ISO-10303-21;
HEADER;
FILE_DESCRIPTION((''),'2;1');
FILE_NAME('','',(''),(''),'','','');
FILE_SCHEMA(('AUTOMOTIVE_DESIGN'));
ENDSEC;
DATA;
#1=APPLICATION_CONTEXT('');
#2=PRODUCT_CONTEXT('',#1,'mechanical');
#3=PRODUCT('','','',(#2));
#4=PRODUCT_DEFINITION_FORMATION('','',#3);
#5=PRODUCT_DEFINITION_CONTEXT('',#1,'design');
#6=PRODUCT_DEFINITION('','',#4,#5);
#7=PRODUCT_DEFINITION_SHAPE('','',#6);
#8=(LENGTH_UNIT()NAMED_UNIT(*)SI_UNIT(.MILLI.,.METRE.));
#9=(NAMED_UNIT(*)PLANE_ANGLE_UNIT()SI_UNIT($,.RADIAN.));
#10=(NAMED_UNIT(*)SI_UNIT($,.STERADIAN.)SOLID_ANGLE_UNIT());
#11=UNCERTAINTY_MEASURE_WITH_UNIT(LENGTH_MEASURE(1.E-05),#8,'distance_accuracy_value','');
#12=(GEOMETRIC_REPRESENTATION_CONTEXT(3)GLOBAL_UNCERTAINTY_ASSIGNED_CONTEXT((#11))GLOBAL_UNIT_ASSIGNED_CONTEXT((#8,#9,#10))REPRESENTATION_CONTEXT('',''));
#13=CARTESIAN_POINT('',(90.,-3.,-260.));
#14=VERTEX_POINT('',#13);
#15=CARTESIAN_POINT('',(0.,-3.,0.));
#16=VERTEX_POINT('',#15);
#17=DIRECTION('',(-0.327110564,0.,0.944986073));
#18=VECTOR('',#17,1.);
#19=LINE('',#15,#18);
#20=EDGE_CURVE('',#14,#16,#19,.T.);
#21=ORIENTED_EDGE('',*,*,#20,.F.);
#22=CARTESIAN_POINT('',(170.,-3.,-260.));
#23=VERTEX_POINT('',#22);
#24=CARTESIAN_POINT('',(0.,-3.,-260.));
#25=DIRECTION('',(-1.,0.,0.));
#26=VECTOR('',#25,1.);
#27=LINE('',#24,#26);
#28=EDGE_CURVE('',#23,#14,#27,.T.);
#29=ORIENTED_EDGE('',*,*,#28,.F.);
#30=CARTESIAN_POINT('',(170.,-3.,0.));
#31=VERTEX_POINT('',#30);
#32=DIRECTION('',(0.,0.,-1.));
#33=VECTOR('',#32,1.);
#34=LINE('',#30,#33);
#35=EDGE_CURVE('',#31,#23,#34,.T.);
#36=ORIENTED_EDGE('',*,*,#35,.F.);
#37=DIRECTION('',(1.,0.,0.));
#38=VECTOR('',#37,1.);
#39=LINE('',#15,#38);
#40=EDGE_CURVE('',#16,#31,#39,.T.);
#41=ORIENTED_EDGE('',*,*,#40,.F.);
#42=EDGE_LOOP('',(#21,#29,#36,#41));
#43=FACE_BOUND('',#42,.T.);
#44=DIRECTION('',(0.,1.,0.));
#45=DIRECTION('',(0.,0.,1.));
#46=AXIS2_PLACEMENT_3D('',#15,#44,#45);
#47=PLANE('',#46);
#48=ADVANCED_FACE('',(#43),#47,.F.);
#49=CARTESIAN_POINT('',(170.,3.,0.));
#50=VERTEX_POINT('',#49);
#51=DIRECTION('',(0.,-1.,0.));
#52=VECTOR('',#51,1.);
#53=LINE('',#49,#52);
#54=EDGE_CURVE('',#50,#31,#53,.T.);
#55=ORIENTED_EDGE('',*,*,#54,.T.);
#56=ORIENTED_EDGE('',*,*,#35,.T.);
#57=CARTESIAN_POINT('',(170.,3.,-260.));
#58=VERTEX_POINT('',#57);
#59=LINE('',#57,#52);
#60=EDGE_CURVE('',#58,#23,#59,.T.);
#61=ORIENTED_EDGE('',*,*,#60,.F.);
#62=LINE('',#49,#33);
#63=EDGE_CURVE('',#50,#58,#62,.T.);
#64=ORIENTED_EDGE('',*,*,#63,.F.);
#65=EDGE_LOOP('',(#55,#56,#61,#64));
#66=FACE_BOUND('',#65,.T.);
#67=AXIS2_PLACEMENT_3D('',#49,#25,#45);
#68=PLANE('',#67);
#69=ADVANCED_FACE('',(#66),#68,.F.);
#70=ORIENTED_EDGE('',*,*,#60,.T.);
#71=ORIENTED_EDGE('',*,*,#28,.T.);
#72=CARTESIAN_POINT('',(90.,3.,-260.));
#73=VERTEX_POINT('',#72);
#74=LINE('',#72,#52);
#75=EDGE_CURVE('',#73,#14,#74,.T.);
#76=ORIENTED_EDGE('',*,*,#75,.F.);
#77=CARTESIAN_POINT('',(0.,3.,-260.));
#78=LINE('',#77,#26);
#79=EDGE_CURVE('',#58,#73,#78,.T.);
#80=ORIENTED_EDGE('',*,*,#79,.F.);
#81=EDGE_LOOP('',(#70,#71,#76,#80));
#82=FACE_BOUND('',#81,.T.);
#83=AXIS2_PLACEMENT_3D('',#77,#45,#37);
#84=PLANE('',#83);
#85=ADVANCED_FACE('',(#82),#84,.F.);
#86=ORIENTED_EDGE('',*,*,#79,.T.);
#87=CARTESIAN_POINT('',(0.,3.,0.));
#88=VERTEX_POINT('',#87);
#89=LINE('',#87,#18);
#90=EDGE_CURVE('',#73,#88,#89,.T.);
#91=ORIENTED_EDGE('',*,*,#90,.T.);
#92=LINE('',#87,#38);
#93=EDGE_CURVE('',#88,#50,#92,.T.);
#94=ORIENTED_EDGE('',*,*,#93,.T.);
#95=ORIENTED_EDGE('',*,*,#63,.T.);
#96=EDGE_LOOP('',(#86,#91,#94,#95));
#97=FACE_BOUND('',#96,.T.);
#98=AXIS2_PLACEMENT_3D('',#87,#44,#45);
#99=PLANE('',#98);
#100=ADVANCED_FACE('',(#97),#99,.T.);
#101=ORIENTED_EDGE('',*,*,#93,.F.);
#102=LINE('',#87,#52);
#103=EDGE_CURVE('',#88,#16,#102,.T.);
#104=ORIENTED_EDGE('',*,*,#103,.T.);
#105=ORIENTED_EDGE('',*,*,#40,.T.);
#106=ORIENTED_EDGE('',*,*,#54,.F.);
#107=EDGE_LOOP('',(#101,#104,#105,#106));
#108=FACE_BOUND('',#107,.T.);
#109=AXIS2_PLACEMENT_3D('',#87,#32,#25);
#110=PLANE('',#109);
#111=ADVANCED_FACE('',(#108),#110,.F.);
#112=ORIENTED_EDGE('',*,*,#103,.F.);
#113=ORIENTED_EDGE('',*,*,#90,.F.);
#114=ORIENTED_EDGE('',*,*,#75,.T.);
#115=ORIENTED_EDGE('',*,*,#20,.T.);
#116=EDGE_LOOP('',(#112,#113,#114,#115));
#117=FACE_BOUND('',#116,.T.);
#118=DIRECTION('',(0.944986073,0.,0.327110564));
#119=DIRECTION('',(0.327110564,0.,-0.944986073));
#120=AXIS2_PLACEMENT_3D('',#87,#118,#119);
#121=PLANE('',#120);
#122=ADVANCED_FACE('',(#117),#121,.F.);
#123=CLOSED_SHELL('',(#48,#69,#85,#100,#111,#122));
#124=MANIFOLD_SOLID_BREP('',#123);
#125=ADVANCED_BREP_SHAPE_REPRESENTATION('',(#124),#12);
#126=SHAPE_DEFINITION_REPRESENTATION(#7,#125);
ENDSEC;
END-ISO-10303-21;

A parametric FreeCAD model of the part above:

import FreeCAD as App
import Part
import Sketcher

V = App.Vector
Q = App.Units.Quantity

doc = App.newDocument("Part")
body = doc.addObject("PartDesign::Body", "Body")

sketch1 = body.newObject("Sketcher::SketchObject", "Sketch")
sketch1.AttachmentSupport = (doc.getObject("XZ_Plane"), [""])
sketch1.MapMode = "FlatFace"
sketch1.addGeometry(Part.LineSegment(V(170, -260, 0), V(90, -260, 0)), False)
sketch1.addGeometry(Part.LineSegment(V(90, -260, 0), V(0, 0, 0)), False)
sketch1.addGeometry(Part.LineSegment(V(0, 0, 0), V(170, 0, 0)), False)
sketch1.addGeometry(Part.LineSegment(V(170, 0, 0), V(170, -260, 0)), False)
sketch1.addConstraint(Sketcher.Constraint("Coincident", 0, 2, 1, 1))
sketch1.addConstraint(Sketcher.Constraint("Coincident", 1, 2, 2, 1))
sketch1.addConstraint(Sketcher.Constraint("Coincident", 2, 2, 3, 1))
sketch1.addConstraint(Sketcher.Constraint("Coincident", 3, 2, 0, 1))
sketch1.addConstraint(Sketcher.Constraint("Horizontal", 0))
sketch1.addConstraint(Sketcher.Constraint("Horizontal", 2))
sketch1.addConstraint(Sketcher.Constraint("Vertical", 3))
sketch1.addConstraint(Sketcher.Constraint("Coincident", 1, 2, -1, 1))
sketch1.addConstraint(Sketcher.Constraint("DistanceX", 0, 2, 0, 1, Q("80 mm")))
sketch1.addConstraint(Sketcher.Constraint("DistanceX", 2, 1, 2, 2, Q("170 mm")))
sketch1.addConstraint(Sketcher.Constraint("DistanceY", 3, 2, 3, 1, Q("260 mm")))
pad1 = body.newObject("PartDesign::Pad", "Pad")
pad1.Profile = sketch1
pad1.Length = 6
pad1.Midplane = True

doc.recompute()
